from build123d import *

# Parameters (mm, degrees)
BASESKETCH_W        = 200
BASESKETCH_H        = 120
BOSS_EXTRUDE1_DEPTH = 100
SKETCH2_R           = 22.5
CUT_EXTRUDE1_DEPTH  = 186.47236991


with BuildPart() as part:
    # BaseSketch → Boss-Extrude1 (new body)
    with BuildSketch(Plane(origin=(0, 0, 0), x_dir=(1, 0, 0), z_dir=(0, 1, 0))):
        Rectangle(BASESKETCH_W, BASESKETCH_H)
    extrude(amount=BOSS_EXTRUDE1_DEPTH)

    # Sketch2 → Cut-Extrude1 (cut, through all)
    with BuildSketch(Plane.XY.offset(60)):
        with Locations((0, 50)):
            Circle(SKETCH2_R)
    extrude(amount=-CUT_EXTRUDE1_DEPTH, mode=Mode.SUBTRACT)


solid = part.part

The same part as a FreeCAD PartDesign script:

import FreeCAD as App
import Part
import Sketcher
from FreeCAD import Vector
Q = App.Units.Quantity


def add_polygon(sketch, points):
    """Adds a closed chain of lines whose ends are joined by coincident constraints."""
    first, n = sketch.GeometryCount, len(points)
    for a, b in zip(points, points[1:] + points[:1]):
        sketch.addGeometry(Part.LineSegment(App.Vector(*a, 0), App.Vector(*b, 0)), False)
    for i in range(n):
        sketch.addConstraint(Sketcher.Constraint("Coincident", first + i, 2, first + (i + 1) % n, 1))

doc = App.newDocument("Part")
body = doc.addObject("PartDesign::Body", "Body")

# Sketch on XZ plane
sketch1 = body.newObject("Sketcher::SketchObject", "Sketch")
sketch1.AttachmentSupport = (doc.getObject("XZ_Plane"), [""])
sketch1.MapMode = "FlatFace"
add_polygon(sketch1, [(-100, -60), (-100, 60), (100, 60), (100, -60)])  # lines 0-3
sketch1.addConstraint(Sketcher.Constraint("Vertical", 0))
sketch1.addConstraint(Sketcher.Constraint("Horizontal", 1))
sketch1.addConstraint(Sketcher.Constraint("Vertical", 2))
sketch1.addConstraint(Sketcher.Constraint("Horizontal", 3))
sketch1.addConstraint(Sketcher.Constraint("Symmetric", 0, 2, 2, 2, -1, 1))
sketch1.addConstraint(Sketcher.Constraint("DistanceX", 1, 1, 1, 2, Q("200 mm")))
sketch1.addConstraint(Sketcher.Constraint("DistanceY", 0, 1, 0, 2, Q("120 mm")))
pad1 = body.newObject("PartDesign::Pad", "Pad")
pad1.Profile = sketch1
pad1.Length = 100
pad1.Reversed = True

# Sketch on XY plane
sketch2 = body.newObject("Sketcher::SketchObject", "Sketch001")
sketch2.AttachmentSupport = (doc.getObject("XY_Plane"), [""])
sketch2.MapMode = "FlatFace"
sketch2.AttachmentOffset = App.Placement(Vector(0, 0, 60), App.Rotation())
sketch2.addGeometry(Part.Circle(Vector(0, 50, 0), Vector(0, 0, 1), 22), False)
sketch2.addConstraint(Sketcher.Constraint("PointOnObject", 0, 3, -2))
sketch2.addConstraint(Sketcher.Constraint("Diameter", 0, Q("45 mm")))
sketch2.addConstraint(Sketcher.Constraint("DistanceY", -1, 1, 0, 3, Q("50 mm")))
pocket1 = body.newObject("PartDesign::Pocket", "Pocket")
pocket1.Profile = sketch2
pocket1.Type = "ThroughAll"

doc.recompute()
